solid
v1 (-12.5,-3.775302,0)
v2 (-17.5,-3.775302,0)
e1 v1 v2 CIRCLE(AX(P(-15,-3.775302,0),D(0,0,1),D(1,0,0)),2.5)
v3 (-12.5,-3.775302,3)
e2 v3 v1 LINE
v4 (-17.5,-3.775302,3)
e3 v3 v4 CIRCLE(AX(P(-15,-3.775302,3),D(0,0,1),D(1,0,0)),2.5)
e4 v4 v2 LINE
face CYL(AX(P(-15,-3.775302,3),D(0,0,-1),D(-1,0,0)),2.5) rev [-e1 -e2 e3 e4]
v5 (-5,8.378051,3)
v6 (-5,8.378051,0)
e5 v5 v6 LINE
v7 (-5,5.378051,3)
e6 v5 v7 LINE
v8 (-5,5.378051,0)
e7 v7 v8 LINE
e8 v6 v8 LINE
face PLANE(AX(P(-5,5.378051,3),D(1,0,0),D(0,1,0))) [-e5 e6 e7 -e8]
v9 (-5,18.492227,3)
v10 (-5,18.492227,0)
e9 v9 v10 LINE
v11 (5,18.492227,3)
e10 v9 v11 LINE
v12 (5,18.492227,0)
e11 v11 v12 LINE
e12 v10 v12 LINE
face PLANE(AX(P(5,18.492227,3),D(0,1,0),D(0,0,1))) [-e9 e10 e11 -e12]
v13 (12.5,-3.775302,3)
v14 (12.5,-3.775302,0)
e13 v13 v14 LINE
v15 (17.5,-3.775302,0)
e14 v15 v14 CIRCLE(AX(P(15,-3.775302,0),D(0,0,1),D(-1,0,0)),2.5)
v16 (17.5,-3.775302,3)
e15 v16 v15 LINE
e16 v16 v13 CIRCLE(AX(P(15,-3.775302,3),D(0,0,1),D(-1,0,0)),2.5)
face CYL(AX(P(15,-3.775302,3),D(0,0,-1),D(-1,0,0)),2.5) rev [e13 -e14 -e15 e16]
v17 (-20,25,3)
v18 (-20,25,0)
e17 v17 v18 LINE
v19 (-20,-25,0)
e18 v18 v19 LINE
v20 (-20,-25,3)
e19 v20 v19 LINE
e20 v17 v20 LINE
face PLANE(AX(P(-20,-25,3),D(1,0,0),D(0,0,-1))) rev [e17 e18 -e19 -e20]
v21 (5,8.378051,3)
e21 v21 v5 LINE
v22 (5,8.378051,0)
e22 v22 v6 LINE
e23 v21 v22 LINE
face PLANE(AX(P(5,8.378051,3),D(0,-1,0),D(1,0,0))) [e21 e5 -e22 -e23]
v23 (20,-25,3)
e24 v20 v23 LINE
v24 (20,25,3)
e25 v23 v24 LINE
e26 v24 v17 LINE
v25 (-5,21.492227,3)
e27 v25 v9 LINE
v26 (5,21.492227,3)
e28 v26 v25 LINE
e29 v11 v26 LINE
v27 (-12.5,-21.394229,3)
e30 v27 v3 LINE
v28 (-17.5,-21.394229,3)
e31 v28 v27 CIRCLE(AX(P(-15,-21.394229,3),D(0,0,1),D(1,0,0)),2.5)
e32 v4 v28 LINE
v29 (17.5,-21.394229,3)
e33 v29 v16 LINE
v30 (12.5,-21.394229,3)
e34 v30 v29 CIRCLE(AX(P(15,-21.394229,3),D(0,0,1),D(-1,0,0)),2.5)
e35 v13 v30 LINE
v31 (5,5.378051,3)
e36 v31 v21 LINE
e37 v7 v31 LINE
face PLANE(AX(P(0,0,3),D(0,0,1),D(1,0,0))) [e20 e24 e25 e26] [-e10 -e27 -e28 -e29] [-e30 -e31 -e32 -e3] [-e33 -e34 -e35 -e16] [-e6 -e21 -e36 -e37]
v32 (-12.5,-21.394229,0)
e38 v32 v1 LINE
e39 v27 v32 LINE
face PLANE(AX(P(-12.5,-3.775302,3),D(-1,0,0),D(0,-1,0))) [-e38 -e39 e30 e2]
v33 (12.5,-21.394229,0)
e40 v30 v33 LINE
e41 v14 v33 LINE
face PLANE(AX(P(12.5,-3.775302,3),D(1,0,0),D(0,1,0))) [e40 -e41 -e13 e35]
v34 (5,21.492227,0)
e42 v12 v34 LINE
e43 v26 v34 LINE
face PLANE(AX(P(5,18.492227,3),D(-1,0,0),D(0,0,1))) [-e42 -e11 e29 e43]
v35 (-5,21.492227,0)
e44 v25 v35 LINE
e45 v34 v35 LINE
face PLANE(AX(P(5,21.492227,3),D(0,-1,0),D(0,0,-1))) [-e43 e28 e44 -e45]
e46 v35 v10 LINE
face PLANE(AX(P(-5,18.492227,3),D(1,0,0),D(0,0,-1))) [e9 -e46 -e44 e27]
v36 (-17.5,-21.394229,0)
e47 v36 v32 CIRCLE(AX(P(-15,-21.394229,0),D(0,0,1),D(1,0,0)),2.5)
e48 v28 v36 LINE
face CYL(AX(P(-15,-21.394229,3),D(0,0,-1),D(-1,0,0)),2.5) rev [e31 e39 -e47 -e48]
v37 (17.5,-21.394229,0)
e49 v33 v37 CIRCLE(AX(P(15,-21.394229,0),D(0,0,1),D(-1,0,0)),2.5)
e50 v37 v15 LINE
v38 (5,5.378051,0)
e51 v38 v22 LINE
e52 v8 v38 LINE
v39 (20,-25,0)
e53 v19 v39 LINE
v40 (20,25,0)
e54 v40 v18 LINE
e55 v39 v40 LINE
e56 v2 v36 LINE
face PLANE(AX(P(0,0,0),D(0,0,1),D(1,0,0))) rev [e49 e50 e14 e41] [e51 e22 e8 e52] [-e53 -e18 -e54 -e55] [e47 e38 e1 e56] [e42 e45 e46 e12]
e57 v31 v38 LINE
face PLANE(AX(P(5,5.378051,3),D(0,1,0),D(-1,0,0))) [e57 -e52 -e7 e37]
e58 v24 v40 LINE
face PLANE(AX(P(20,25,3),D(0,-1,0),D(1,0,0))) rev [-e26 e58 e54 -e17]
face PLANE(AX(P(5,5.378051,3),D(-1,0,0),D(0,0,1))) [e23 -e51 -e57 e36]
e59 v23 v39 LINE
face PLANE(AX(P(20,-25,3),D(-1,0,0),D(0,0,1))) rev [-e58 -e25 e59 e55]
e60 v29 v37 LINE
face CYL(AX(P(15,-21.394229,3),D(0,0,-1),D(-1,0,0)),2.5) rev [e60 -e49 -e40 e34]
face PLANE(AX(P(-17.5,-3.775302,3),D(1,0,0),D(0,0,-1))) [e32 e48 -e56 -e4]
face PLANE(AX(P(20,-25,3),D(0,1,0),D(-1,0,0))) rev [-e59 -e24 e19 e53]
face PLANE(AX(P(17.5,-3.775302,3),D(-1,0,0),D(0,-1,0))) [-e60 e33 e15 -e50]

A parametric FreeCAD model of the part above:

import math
import FreeCAD as App
import Part
import Sketcher
Q = App.Units.Quantity

doc = App.newDocument("Part")
body = doc.addObject("PartDesign::Body", "Body")

sketch1 = doc.addObject("Sketcher::SketchObject", "Sketch")
body.addObject(sketch1)
sketch1.AttachmentSupport = (doc.XY_Plane, [""])
sketch1.MapMode = "FlatFace"
sketch1.addGeometry(Part.LineSegment(App.Vector(-20, 25, 0), App.Vector(-20, -25, 0)), False)
sketch1.addGeometry(Part.LineSegment(App.Vector(-20, -25, 0), App.Vector(20, -25, 0)), False)
sketch1.addGeometry(Part.LineSegment(App.Vector(20, -25, 0), App.Vector(20, 25, 0)), False)
sketch1.addGeometry(Part.LineSegment(App.Vector(20, 25, 0), App.Vector(-20, 25, 0)), False)
sketch1.addGeometry(Part.ArcOfCircle(Part.Circle(App.Vector(-15, -3.8, 0), App.Vector(0, 0, 1), 2.5), math.radians(0), math.radians(180)), False)
sketch1.addGeometry(Part.LineSegment(App.Vector(-12.5, -3.8, 0), App.Vector(-12.5, -21.4, 0)), False)
sketch1.addGeometry(Part.ArcOfCircle(Part.Circle(App.Vector(-15, -21.4, 0), App.Vector(0, 0, 1), 2.5), math.radians(180), math.radians(360)), False)
sketch1.addGeometry(Part.LineSegment(App.Vector(-17.5, -21.4, 0), App.Vector(-17.5, -3.8, 0)), False)
sketch1.addGeometry(Part.LineSegment(App.Vector(12.5, -21.4, 0), App.Vector(12.5, -3.8, 0)), False)
sketch1.addGeometry(Part.ArcOfCircle(Part.Circle(App.Vector(15, -3.8, 0), App.Vector(0, 0, 1), 2.5), math.radians(0), math.radians(180)), False)
sketch1.addGeometry(Part.LineSegment(App.Vector(17.5, -3.8, 0), App.Vector(17.5, -21.4, 0)), False)
sketch1.addGeometry(Part.ArcOfCircle(Part.Circle(App.Vector(15, -21.4, 0), App.Vector(0, 0, 1), 2.5), math.radians(180), math.radians(360)), False)
sketch1.addGeometry(Part.LineSegment(App.Vector(5, 5.4, 0), App.Vector(-5, 5.4, 0)), False)
sketch1.addGeometry(Part.LineSegment(App.Vector(-5, 5.4, 0), App.Vector(-5, 8.4, 0)), False)
sketch1.addGeometry(Part.LineSegment(App.Vector(-5, 8.4, 0), App.Vector(5, 8.4, 0)), False)
sketch1.addGeometry(Part.LineSegment(App.Vector(5, 8.4, 0), App.Vector(5, 5.4, 0)), False)
sketch1.addGeometry(Part.LineSegment(App.Vector(5, 18.5, 0), App.Vector(-5, 18.5, 0)), False)
sketch1.addGeometry(Part.LineSegment(App.Vector(-5, 18.5, 0), App.Vector(-5, 21.5, 0)), False)
sketch1.addGeometry(Part.LineSegment(App.Vector(-5, 21.5, 0), App.Vector(5, 21.5, 0)), False)
sketch1.addGeometry(Part.LineSegment(App.Vector(5, 21.5, 0), App.Vector(5, 18.5, 0)), False)
sketch1.addConstraint(Sketcher.Constraint("Coincident", 0, 2, 1, 1))
sketch1.addConstraint(Sketcher.Constraint("Coincident", 1, 2, 2, 1))
sketch1.addConstraint(Sketcher.Constraint("Coincident", 2, 2, 3, 1))
sketch1.addConstraint(Sketcher.Constraint("Coincident", 3, 2, 0, 1))
sketch1.addConstraint(Sketcher.Constraint("Tangent", 4, 1, 5, 1))
sketch1.addConstraint(Sketcher.Constraint("Tangent", 5, 2, 6, 2))
sketch1.addConstraint(Sketcher.Constraint("Tangent", 6, 1, 7, 1))
sketch1.addConstraint(Sketcher.Constraint("Tangent", 7, 2, 4, 2))
sketch1.addConstraint(Sketcher.Constraint("Tangent", 8, 2, 9, 2))
sketch1.addConstraint(Sketcher.Constraint("Tangent", 9, 1, 10, 1))
sketch1.addConstraint(Sketcher.Constraint("Tangent", 10, 2, 11, 2))
sketch1.addConstraint(Sketcher.Constraint("Tangent", 11, 1, 8, 1))
sketch1.addConstraint(Sketcher.Constraint("Coincident", 12, 2, 13, 1))
sketch1.addConstraint(Sketcher.Constraint("Coincident", 13, 2, 14, 1))
sketch1.addConstraint(Sketcher.Constraint("Coincident", 14, 2, 15, 1))
sketch1.addConstraint(Sketcher.Constraint("Coincident", 15, 2, 12, 1))
sketch1.addConstraint(Sketcher.Constraint("Coincident", 16, 2, 17, 1))
sketch1.addConstraint(Sketcher.Constraint("Coincident", 17, 2, 18, 1))
sketch1.addConstraint(Sketcher.Constraint("Coincident", 18, 2, 19, 1))
sketch1.addConstraint(Sketcher.Constraint("Coincident", 19, 2, 16, 1))
sketch1.addConstraint(Sketcher.Constraint("Vertical", 0))
sketch1.addConstraint(Sketcher.Constraint("Horizontal", 1))
sketch1.addConstraint(Sketcher.Constraint("Vertical", 2))
sketch1.addConstraint(Sketcher.Constraint("Horizontal", 3))
sketch1.addConstraint(Sketcher.Constraint("Vertical", 5))
sketch1.addConstraint(Sketcher.Constraint("Vertical", 7))
sketch1.addConstraint(Sketcher.Constraint("Vertical", 8))
sketch1.addConstraint(Sketcher.Constraint("Vertical", 10))
sketch1.addConstraint(Sketcher.Constraint("Horizontal", 12))
sketch1.addConstraint(Sketcher.Constraint("Vertical", 13))
sketch1.addConstraint(Sketcher.Constraint("Horizontal", 14))
sketch1.addConstraint(Sketcher.Constraint("Vertical", 15))
sketch1.addConstraint(Sketcher.Constraint("Horizontal", 16))
sketch1.addConstraint(Sketcher.Constraint("Vertical", 17))
sketch1.addConstraint(Sketcher.Constraint("Horizontal", 18))
sketch1.addConstraint(Sketcher.Constraint("Vertical", 19))
sketch1.addConstraint(Sketcher.Constraint("Equal", 6, 9))
sketch1.addConstraint(Sketcher.Constraint("Symmetric", 0, 2, 2, 2, -1, 1))
sketch1.addConstraint(Sketcher.Constraint("Symmetric", 4, 3, 9, 3, -2))
sketch1.addConstraint(Sketcher.Constraint("Horizontal", 6, 3, 11, 3))
sketch1.addConstraint(Sketcher.Constraint("Vertical", 13, 2, 16, 2))
sketch1.addConstraint(Sketcher.Constraint("Vertical", 15, 2, 18, 2))
sketch1.addConstraint(Sketcher.Constraint("Equal", 15, 17))
sketch1.addConstraint(Sketcher.Constraint("Radius", 4, Q("2.5 mm")))
sketch1.addConstraint(Sketcher.Constraint("DistanceX", 1, 1, 1, 2, Q("40 mm")))
sketch1.addConstraint(Sketcher.Constraint("DistanceX", 12, 2, 12, 1, Q("10 mm")))
sketch1.addConstraint(Sketcher.Constraint("DistanceY", 0, 2, 0, 1, Q("50 mm")))
sketch1.addConstraint(Sketcher.Constraint("DistanceY", 13, 1, 13, 2, Q("3 mm")))
sketch1.addConstraint(Sketcher.Constraint("DistanceX", 4, 3, -1, 1, Q("15 mm")))
sketch1.addConstraint(Sketcher.Constraint("DistanceX", 12, 2, -1, 1, Q("5 mm")))
sketch1.addConstraint(Sketcher.Constraint("DistanceY", 5, 2, 5, 1, Q("17.618927 mm")))
sketch1.addConstraint(Sketcher.Constraint("DistanceY", 6, 3, -1, 1, Q("21.394229 mm")))
sketch1.addConstraint(Sketcher.Constraint("DistanceY", -1, 1, 12, 2, Q("5.378051 mm")))
sketch1.addConstraint(Sketcher.Constraint("DistanceY", -1, 1, 16, 2, Q("18.492227 mm")))
pad1 = doc.addObject("PartDesign::Pad", "Pad")
body.addObject(pad1)
pad1.Profile = sketch1
pad1.Length = 3

doc.recompute()
